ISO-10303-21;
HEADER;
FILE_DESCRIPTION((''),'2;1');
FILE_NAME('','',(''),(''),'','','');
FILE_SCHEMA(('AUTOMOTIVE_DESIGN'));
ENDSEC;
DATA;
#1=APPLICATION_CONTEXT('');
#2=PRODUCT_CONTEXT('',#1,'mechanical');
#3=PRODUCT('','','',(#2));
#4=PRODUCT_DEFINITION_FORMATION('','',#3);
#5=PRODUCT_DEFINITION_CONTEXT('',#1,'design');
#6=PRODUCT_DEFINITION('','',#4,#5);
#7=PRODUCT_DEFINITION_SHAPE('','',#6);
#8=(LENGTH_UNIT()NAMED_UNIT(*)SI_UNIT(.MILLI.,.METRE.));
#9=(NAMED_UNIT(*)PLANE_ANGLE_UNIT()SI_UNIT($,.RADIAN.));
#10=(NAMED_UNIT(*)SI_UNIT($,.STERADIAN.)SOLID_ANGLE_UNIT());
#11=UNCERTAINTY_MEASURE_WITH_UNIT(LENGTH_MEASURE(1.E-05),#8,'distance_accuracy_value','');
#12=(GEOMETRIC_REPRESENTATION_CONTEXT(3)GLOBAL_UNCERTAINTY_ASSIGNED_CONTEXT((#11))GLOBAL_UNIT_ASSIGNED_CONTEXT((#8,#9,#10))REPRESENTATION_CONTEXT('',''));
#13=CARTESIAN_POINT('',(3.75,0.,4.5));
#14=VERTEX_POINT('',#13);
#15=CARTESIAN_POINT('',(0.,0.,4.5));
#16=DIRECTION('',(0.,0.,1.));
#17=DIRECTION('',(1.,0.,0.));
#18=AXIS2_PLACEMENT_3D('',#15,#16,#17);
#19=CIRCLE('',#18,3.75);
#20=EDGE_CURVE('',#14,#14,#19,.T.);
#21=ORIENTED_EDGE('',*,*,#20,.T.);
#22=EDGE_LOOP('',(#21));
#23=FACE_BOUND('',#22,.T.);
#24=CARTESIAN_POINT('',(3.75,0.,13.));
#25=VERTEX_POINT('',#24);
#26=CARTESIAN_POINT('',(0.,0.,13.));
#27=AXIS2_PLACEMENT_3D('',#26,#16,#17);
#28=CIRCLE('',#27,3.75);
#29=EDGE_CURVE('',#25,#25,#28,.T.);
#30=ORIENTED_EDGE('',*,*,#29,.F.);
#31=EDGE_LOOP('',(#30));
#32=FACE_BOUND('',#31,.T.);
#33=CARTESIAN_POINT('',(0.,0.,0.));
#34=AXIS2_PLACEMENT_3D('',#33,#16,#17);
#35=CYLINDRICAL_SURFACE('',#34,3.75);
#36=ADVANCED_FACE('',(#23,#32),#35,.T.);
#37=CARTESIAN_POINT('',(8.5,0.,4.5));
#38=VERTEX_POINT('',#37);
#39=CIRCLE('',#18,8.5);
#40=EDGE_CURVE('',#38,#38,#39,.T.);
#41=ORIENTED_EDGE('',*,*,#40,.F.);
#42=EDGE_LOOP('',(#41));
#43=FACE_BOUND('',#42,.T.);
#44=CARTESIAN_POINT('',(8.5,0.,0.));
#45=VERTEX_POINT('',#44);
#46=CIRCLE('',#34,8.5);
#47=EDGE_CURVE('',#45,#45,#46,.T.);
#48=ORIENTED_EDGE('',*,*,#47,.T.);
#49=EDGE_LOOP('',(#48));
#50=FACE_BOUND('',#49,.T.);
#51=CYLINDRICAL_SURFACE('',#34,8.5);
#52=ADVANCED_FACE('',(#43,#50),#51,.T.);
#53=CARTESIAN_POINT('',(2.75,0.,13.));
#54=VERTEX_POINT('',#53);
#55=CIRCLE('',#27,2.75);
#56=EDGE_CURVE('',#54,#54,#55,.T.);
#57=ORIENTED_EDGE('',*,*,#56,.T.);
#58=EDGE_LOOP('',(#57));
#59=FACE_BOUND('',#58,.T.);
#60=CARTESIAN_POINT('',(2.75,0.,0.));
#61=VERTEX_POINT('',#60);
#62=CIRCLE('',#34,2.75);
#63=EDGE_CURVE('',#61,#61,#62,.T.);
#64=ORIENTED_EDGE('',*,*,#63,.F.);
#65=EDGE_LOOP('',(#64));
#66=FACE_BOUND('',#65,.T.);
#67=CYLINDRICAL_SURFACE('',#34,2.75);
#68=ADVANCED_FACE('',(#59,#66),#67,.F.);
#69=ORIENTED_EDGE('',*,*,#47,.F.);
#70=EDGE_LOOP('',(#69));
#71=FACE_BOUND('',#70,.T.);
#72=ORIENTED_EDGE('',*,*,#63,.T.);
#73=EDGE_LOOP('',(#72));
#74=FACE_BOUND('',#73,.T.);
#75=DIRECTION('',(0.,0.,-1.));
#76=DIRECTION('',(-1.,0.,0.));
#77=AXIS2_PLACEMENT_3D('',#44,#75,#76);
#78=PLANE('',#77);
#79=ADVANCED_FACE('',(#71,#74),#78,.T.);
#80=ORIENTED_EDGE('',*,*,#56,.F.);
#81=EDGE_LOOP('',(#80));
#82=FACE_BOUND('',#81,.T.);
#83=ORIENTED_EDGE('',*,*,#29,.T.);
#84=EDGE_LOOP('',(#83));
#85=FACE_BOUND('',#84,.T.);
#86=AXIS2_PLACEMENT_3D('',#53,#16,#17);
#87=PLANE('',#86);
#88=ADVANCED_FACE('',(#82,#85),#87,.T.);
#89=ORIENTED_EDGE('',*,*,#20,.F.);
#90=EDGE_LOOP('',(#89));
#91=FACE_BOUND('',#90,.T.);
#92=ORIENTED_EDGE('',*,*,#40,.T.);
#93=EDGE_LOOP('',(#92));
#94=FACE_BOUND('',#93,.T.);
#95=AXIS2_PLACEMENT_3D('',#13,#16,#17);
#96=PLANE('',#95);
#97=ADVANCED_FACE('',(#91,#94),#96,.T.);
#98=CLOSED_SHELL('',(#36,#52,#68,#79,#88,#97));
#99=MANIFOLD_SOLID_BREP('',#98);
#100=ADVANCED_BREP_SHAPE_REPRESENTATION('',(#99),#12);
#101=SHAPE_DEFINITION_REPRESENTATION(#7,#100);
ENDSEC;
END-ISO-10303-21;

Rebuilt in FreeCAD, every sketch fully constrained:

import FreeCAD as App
import Part
import Sketcher
from FreeCAD import Vector

doc = App.newDocument("Part")
params = doc.addObject("Spreadsheet::Sheet", "Params")
for row, (alias, value) in enumerate([
    ("sketch1_width", "1 mm"),
    ("sketch1_height", "13 mm"),
    ("sketch1_height2", "8.5 mm"),
    ("sketch1_width2", "4.75 mm"),
    ("revolution_angle", "360 deg"),
], start=1):
    params.set(f"A{row}", alias)
    params.set(f"B{row}", "=" + value)
    params.setAlias(f"B{row}", alias)

body = doc.addObject("PartDesign::Body", "Body")

sketch1 = body.newObject("Sketcher::SketchObject", "Sketch")
sketch1.AttachmentSupport = (doc.getObject("XZ_Plane"), [""])
sketch1.MapMode = "FlatFace"
sketch1.addGeometry([
    Part.LineSegment(Vector(2.75, 13, 0), Vector(3.75, 13, 0)),
    Part.LineSegment(Vector(3.75, 13, 0), Vector(3.75, 4.5, 0)),
    Part.LineSegment(Vector(3.75, 4.5, 0), Vector(8.5, 4.5, 0)),
    Part.LineSegment(Vector(8.5, 4.5, 0), Vector(8.5, 0, 0)),
    Part.LineSegment(Vector(8.5, 0, 0), Vector(2.75, 0, 0)),
    Part.LineSegment(Vector(2.75, 0, 0), Vector(2.75, 13, 0)),
], False)
sketch1.addConstraint([
    Sketcher.Constraint("Coincident", 0, 2, 1, 1),
    Sketcher.Constraint("Coincident", 1, 2, 2, 1),
    Sketcher.Constraint("Coincident", 2, 2, 3, 1),
    Sketcher.Constraint("Coincident", 3, 2, 4, 1),
    Sketcher.Constraint("Coincident", 4, 2, 5, 1),
    Sketcher.Constraint("Coincident", 5, 2, 0, 1),
    Sketcher.Constraint("Horizontal", 0),
    Sketcher.Constraint("Vertical", 1),
    Sketcher.Constraint("Horizontal", 2),
    Sketcher.Constraint("Vertical", 3),
    Sketcher.Constraint("Horizontal", 4),
    Sketcher.Constraint("Vertical", 5),
    Sketcher.Constraint("PointOnObject", 3, 2, -1),
    Sketcher.Constraint("DistanceX", 0, 1, 0, 2, 1.0),
    Sketcher.Constraint("DistanceY", 5, 1, 5, 2, 13.0),
    Sketcher.Constraint("DistanceY", 1, 2, 1, 1, 8.5),
    Sketcher.Constraint("DistanceX", 2, 1, 2, 2, 4.75),
    Sketcher.Constraint("DistanceX", -1, 1, 2, 2, 8.5),
])
sketch1.setExpression("Constraints[13]", "Params.sketch1_width")
sketch1.setExpression("Constraints[14]", "Params.sketch1_height")
sketch1.setExpression("Constraints[15]", "Params.sketch1_height2")
sketch1.setExpression("Constraints[16]", "Params.sketch1_width2")
revolution = body.newObject("PartDesign::Revolution", "Revolution")
revolution.Profile = sketch1
revolution.ReferenceAxis = (sketch1, ["V_Axis"])
revolution.setExpression("Angle", "Params.revolution_angle")

doc.recompute()
